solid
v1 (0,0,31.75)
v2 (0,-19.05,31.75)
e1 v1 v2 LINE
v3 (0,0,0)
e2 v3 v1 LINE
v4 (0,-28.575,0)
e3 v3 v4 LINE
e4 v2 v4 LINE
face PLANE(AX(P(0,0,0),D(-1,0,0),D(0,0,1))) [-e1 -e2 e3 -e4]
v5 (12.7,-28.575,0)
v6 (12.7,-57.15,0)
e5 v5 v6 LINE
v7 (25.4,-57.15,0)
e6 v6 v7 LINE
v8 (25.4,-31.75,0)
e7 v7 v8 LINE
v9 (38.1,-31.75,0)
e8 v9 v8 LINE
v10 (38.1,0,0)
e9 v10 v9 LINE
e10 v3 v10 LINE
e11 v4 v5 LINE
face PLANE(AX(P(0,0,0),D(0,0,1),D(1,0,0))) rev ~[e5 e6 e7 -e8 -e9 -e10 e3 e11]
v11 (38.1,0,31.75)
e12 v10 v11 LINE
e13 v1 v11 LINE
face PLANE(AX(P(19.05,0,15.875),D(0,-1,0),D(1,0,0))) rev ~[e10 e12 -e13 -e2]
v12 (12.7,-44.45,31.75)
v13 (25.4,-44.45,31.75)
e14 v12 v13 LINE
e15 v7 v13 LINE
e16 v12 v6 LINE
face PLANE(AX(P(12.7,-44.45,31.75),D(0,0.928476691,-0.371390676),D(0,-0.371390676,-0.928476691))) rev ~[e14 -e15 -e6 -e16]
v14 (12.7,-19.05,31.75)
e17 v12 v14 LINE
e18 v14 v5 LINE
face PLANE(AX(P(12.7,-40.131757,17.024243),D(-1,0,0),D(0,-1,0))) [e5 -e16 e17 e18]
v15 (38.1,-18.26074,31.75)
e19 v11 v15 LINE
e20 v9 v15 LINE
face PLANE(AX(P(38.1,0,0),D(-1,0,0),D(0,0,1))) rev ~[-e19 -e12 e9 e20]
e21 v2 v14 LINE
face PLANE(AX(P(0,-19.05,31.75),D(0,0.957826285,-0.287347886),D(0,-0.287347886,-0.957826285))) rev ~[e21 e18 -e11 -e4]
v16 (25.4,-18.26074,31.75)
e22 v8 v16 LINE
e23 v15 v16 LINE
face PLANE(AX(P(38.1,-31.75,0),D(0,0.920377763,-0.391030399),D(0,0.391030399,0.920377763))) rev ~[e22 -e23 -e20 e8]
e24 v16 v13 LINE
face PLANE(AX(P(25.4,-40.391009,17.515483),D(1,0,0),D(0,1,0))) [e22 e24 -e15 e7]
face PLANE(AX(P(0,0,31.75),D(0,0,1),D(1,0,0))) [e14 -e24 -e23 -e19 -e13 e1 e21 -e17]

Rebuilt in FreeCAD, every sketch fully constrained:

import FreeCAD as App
import Part
import Sketcher
from FreeCAD import Vector
Q = App.Units.Quantity


def add_polygon(sketch, points):
    """Adds a closed chain of lines whose ends are joined by coincident constraints."""
    first, n = sketch.GeometryCount, len(points)
    for a, b in zip(points, points[1:] + points[:1]):
        sketch.addGeometry(Part.LineSegment(App.Vector(*a, 0), App.Vector(*b, 0)), False)
    for i in range(n):
        sketch.addConstraint(Sketcher.Constraint("Coincident", first + i, 2, first + (i + 1) % n, 1))

doc = App.newDocument("Part")
params = doc.addObject("Spreadsheet::Sheet", "Params")
for row, (alias, value) in enumerate([
    ("sketch1_width", "1.5 in"),
    ("sketch1_height", "1.25 in"),
    ("pad1_length", "2.25 in"),
    ("sketch2_width", "1.5 in"),
    ("sketch2_height", "1.25 in"),
    ("sketch2_width2", "1.125 in"),
    ("pocket1_length", "0.5 in"),
    ("sketch3_width", "1 in"),
    ("sketch3_height", "1.25 in"),
    ("pocket2_length", "0.5 in"),
    ("sketch4_width", "0.5 in"),
    ("sketch4_height", "1.25 in"),
    ("pocket3_length", "1 in"),
], start=1):
    params.set(f"A{row}", alias)
    params.set(f"B{row}", "=" + value)
    params.setAlias(f"B{row}", alias)

body = doc.addObject("PartDesign::Body", "Body")

sketch1 = body.newObject("Sketcher::SketchObject", "Sketch")
sketch1.AttachmentSupport = (doc.getObject("XZ_Plane"), [""])
sketch1.MapMode = "FlatFace"
add_polygon(sketch1, [(0, 32), (0, 0), (38, 0), (38, 32)])
sketch1.addConstraint([
    Sketcher.Constraint("Vertical", 0),
    Sketcher.Constraint("Horizontal", 1),
    Sketcher.Constraint("Vertical", 2),
    Sketcher.Constraint("Horizontal", 3),
    Sketcher.Constraint("Coincident", 0, 2, -1, 1),
    Sketcher.Constraint("DistanceX", 1, 1, 1, 2, Q("1.5 in")),
    Sketcher.Constraint("DistanceY", 0, 2, 0, 1, Q("1.25 in")),
])
sketch1.setExpression("Constraints[9]", "Params.sketch1_width")
sketch1.setExpression("Constraints[10]", "Params.sketch1_height")
pad1 = body.newObject("PartDesign::Pad", "Pad")
pad1.Profile = sketch1
pad1.setExpression("Length", "Params.pad1_length")

sketch2 = body.newObject("Sketcher::SketchObject", "Sketch001")
sketch2.AttachmentSupport = (doc.getObject("YZ_Plane"), [""])
sketch2.MapMode = "FlatFace"
add_polygon(sketch2, [(-57, 32), (-19, 32), (-29, 0), (-57, 0)])
sketch2.addConstraint([
    Sketcher.Constraint("Horizontal", 0),
    Sketcher.Constraint("Horizontal", 2),
    Sketcher.Constraint("Vertical", 3),
    Sketcher.Constraint("PointOnObject", 1, 2, -1),
    Sketcher.Constraint("DistanceX", 0, 1, 0, 2, Q("1.5 in")),
    Sketcher.Constraint("DistanceY", 3, 1, 3, 2, Q("1.25 in")),
    Sketcher.Constraint("DistanceX", 2, 2, 2, 1, Q("1.125 in")),
    Sketcher.Constraint("DistanceX", 0, 2, -1, 1, Q("0.75 in")),
])
sketch2.setExpression("Constraints[8]", "Params.sketch2_width")
sketch2.setExpression("Constraints[9]", "Params.sketch2_height")
sketch2.setExpression("Constraints[10]", "Params.sketch2_width2")
pocket1 = body.newObject("PartDesign::Pocket", "Pocket")
pocket1.Profile = sketch2
pocket1.setExpression("Length", "Params.pocket1_length")
pocket1.Reversed = True

sketch3 = body.newObject("Sketcher::SketchObject", "Sketch002")
sketch3.AttachmentSupport = (doc.getObject("YZ_Plane"), [""])
sketch3.MapMode = "FlatFace"
sketch3.AttachmentOffset = App.Placement(Vector(0, 0, 1.5 * 25.4), App.Rotation())
add_polygon(sketch3, [(-32, 0), (-18, 32), (-57, 32), (-57, 0)])
sketch3.addConstraint([
    Sketcher.Constraint("Horizontal", 1),
    Sketcher.Constraint("Vertical", 2),
    Sketcher.Constraint("Horizontal", 3),
    Sketcher.Constraint("PointOnObject", 2, 2, -1),
    Sketcher.Constraint("DistanceX", 3, 1, 3, 2, Q("1 in")),
    Sketcher.Constraint("DistanceY", 2, 2, 2, 1, Q("1.25 in")),
    Sketcher.Constraint("DistanceX", 1, 2, -1, 1, Q("2.25 in")),
    Sketcher.Constraint("DistanceX", 1, 2, 1, 1, 38.88926),
])
sketch3.setExpression("Constraints[8]", "Params.sketch3_width")
sketch3.setExpression("Constraints[9]", "Params.sketch3_height")
pocket2 = body.newObject("PartDesign::Pocket", "Pocket001")
pocket2.Profile = sketch3
pocket2.setExpression("Length", "Params.pocket2_length")

sketch4 = body.newObject("Sketcher::SketchObject", "Sketch003")
sketch4.AttachmentSupport = (doc.getObject("YZ_Plane"), [""])
sketch4.MapMode = "FlatFace"
sketch4.AttachmentOffset = App.Placement(Vector(0, 0, 0.5 * 25.4), App.Rotation())
add_polygon(sketch4, [(-57, 0), (-57, 32), (-44, 32)])
sketch4.addConstraint([
    Sketcher.Constraint("Vertical", 0),
    Sketcher.Constraint("Horizontal", 1),
    Sketcher.Constraint("PointOnObject", 2, 2, -1),
    Sketcher.Constraint("DistanceX", 1, 1, 1, 2, Q("0.5 in")),
    Sketcher.Constraint("DistanceY", 0, 1, 0, 2, Q("1.25 in")),
    Sketcher.Constraint("DistanceX", 0, 2, -1, 1, Q("2.25 in")),
])
sketch4.setExpression("Constraints[6]", "Params.sketch4_width")
sketch4.setExpression("Constraints[7]", "Params.sketch4_height")
pocket3 = body.newObject("PartDesign::Pocket", "Pocket002")
pocket3.Profile = sketch4
pocket3.setExpression("Length", "Params.pocket3_length")
pocket3.Reversed = True

doc.recompute()
